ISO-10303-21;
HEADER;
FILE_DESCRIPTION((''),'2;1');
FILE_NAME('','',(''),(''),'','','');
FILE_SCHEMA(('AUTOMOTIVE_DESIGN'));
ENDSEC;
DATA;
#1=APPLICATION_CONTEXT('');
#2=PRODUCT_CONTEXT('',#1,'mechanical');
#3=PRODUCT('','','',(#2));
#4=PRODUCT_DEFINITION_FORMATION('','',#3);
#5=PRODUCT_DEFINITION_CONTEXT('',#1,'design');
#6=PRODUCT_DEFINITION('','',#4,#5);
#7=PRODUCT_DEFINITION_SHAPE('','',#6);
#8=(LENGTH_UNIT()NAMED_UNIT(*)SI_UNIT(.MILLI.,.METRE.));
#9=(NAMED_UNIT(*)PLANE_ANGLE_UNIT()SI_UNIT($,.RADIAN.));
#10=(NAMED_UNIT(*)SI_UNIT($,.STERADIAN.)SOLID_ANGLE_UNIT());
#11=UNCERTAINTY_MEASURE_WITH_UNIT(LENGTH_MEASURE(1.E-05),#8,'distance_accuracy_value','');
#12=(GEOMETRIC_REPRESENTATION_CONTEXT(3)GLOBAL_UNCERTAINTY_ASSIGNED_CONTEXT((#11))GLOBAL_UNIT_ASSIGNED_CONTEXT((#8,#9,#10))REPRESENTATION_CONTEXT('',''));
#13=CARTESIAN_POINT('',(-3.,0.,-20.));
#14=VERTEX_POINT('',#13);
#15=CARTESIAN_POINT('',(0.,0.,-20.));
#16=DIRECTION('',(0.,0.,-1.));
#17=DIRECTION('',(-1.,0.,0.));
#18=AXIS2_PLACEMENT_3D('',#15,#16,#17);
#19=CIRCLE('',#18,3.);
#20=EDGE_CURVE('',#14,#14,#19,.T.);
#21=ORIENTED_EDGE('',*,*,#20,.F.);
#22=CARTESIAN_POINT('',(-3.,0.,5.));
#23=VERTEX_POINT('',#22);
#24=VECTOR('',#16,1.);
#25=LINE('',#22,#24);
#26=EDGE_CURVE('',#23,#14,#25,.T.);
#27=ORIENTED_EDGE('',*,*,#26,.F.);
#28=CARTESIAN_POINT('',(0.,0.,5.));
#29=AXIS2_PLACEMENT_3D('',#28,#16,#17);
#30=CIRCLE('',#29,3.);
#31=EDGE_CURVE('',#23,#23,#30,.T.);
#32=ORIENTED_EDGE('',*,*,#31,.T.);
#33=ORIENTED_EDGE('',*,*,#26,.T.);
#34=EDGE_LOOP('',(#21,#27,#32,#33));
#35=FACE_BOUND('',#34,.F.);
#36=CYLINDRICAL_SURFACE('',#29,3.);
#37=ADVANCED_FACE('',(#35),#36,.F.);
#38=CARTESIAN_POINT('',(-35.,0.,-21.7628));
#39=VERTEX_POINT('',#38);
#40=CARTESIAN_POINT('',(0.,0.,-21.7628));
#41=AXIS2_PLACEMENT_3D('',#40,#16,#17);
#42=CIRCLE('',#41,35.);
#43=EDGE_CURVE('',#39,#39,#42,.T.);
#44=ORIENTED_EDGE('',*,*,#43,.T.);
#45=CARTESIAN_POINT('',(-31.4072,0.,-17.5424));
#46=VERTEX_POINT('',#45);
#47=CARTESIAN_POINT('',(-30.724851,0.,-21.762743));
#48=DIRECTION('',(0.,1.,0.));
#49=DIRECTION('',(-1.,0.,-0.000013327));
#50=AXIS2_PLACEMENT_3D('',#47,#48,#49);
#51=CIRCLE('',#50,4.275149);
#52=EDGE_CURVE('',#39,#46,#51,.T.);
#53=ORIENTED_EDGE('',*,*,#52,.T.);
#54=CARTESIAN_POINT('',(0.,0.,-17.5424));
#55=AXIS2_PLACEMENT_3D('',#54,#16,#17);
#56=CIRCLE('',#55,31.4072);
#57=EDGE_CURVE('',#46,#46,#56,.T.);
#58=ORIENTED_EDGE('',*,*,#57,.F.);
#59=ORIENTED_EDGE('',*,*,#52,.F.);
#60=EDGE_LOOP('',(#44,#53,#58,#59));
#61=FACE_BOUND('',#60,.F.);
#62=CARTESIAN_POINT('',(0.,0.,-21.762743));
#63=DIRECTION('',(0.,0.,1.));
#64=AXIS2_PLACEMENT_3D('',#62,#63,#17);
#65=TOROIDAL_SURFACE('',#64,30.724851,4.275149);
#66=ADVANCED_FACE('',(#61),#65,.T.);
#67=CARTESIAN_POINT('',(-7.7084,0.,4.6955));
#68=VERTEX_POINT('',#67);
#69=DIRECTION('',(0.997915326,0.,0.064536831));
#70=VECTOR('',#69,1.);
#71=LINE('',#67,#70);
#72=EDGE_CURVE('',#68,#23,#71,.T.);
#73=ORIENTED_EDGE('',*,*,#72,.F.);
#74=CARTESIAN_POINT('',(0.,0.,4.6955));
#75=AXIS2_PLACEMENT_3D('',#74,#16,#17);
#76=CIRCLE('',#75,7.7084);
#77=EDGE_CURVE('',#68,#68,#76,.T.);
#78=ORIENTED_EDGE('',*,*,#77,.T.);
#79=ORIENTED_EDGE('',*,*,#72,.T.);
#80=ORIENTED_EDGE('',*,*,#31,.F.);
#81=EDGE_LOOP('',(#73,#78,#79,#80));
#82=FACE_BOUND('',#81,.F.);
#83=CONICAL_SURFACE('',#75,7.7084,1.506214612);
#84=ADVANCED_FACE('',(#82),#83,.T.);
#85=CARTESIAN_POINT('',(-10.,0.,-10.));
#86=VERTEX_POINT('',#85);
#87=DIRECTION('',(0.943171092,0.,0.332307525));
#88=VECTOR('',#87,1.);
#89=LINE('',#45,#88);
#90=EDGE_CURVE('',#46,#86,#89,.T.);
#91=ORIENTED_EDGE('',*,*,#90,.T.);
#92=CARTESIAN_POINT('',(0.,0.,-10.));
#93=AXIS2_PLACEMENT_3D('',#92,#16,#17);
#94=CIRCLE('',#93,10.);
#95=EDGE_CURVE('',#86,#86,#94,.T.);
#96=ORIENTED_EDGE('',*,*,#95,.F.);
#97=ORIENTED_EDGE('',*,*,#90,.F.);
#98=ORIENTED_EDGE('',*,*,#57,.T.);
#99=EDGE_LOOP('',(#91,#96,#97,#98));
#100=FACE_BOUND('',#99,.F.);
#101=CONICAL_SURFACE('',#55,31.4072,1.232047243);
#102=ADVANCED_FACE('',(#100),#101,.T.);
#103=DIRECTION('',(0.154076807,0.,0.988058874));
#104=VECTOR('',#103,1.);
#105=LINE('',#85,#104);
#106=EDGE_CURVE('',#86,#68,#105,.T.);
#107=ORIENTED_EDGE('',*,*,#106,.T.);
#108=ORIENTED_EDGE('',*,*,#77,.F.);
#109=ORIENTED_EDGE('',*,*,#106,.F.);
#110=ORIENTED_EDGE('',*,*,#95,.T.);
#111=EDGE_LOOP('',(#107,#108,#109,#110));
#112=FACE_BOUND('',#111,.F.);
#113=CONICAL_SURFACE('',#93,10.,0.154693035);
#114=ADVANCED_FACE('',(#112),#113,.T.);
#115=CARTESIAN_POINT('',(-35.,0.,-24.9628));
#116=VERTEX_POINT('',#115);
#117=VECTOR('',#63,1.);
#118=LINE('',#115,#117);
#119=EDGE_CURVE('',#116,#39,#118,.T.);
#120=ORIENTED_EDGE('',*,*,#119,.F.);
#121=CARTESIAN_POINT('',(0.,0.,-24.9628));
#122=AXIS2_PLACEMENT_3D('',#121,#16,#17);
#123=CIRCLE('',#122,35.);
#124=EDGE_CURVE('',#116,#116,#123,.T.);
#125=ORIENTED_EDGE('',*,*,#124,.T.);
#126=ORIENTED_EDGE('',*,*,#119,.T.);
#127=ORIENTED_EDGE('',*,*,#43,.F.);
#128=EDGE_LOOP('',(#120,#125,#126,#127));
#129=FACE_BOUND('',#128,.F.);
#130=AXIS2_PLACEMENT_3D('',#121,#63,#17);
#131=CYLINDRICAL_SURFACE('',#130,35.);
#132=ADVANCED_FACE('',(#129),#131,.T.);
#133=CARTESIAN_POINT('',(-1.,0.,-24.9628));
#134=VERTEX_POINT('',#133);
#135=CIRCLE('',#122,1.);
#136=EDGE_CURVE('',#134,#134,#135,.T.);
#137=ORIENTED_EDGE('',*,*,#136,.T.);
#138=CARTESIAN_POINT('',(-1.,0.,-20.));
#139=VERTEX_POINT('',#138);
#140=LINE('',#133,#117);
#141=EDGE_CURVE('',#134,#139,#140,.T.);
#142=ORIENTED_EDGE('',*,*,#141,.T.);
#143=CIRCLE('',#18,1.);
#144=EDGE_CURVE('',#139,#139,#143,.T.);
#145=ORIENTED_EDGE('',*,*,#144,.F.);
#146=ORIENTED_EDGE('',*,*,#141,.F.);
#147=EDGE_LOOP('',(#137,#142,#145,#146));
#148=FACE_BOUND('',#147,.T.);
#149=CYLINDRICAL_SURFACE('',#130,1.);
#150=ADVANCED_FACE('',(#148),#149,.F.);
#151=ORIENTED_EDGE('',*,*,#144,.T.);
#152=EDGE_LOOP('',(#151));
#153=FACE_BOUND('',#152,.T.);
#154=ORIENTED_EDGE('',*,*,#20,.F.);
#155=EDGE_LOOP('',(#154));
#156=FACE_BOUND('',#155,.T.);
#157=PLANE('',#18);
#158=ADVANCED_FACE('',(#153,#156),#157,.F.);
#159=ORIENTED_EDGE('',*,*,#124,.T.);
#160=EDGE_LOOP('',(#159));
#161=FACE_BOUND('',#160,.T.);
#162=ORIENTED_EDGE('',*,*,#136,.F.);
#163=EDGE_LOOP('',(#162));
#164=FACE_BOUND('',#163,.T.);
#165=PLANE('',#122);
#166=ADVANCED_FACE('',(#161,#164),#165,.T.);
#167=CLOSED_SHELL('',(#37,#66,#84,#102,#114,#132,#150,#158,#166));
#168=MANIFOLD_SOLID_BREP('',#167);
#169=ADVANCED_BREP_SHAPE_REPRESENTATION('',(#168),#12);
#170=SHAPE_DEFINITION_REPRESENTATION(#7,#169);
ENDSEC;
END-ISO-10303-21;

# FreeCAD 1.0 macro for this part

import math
import FreeCAD as App
import Part
import Sketcher

V = App.Vector
Q = App.Units.Quantity

doc = App.newDocument("Part")
body = doc.addObject("PartDesign::Body", "Body")

# Sketch on XZ plane
sketch1 = body.newObject("Sketcher::SketchObject", "Sketch")
sketch1.AttachmentSupport = (doc.getObject("XZ_Plane"), [""])
sketch1.MapMode = "FlatFace"
sketch1.addGeometry(Part.LineSegment(V(-1, -24.9628, 0), V(-35, -24.9628, 0)), False)
sketch1.addGeometry(Part.LineSegment(V(-35, -24.9628, 0), V(-35, -21.7628, 0)), False)
sketch1.addGeometry(Part.ArcOfCircle(Part.Circle(V(-30.7249, -21.7628, 0), V(0, 0, 1), 4.2751), math.radians(99.183388), math.radians(180)), False)
sketch1.addGeometry(Part.LineSegment(V(-31.4072, -17.5424, 0), V(-10, -10, 0)), False)
sketch1.addGeometry(Part.LineSegment(V(-10, -10, 0), V(-7.7084, 4.6955, 0)), False)
sketch1.addGeometry(Part.LineSegment(V(-7.7084, 4.6955, 0), V(-3, 5, 0)), False)
sketch1.addGeometry(Part.LineSegment(V(-3, 5, 0), V(-3, -20, 0)), False)
sketch1.addGeometry(Part.LineSegment(V(-3, -20, 0), V(-1, -20, 0)), False)
sketch1.addGeometry(Part.LineSegment(V(-1, -20, 0), V(-1, -24.9628, 0)), False)
sketch1.addConstraint(Sketcher.Constraint("Coincident", 0, 2, 1, 1))
sketch1.addConstraint(Sketcher.Constraint("Tangent", 1, 2, 2, 2))
sketch1.addConstraint(Sketcher.Constraint("Coincident", 2, 1, 3, 1))
sketch1.addConstraint(Sketcher.Constraint("Coincident", 3, 2, 4, 1))
sketch1.addConstraint(Sketcher.Constraint("Coincident", 4, 2, 5, 1))
sketch1.addConstraint(Sketcher.Constraint("Coincident", 5, 2, 6, 1))
sketch1.addConstraint(Sketcher.Constraint("Coincident", 6, 2, 7, 1))
sketch1.addConstraint(Sketcher.Constraint("Coincident", 7, 2, 8, 1))
sketch1.addConstraint(Sketcher.Constraint("Coincident", 8, 2, 0, 1))
sketch1.addConstraint(Sketcher.Constraint("Horizontal", 0))
sketch1.addConstraint(Sketcher.Constraint("Vertical", 1))
sketch1.addConstraint(Sketcher.Constraint("Vertical", 6))
sketch1.addConstraint(Sketcher.Constraint("Horizontal", 7))
sketch1.addConstraint(Sketcher.Constraint("Vertical", 8))
sketch1.addConstraint(Sketcher.Constraint("DistanceX", 0, 2, 0, 1, 34.0))
sketch1.addConstraint(Sketcher.Constraint("DistanceY", 1, 1, 1, 2, 3.2))
sketch1.addConstraint(Sketcher.Constraint("DistanceX", 5, 2, -1, 1, 3.0))
sketch1.addConstraint(Sketcher.Constraint("DistanceX", 7, 1, 7, 2, 2.0))
sketch1.addConstraint(Sketcher.Constraint("DistanceY", 6, 2, 6, 1, 25.0))
sketch1.addConstraint(Sketcher.Constraint("DistanceX", 3, 2, -1, 1, 10.0))
sketch1.addConstraint(Sketcher.Constraint("DistanceY", 3, 2, -1, 1, 10.0))
sketch1.addConstraint(Sketcher.Constraint("DistanceY", -1, 1, 5, 2, 5.0))
sketch1.addConstraint(Sketcher.Constraint("Angle", 5, Q("3.7003 deg")))
sketch1.addConstraint(Sketcher.Constraint("Radius", 2, 4.275))
sketch1.addConstraint(Sketcher.Constraint("Angle", 3, Q("19.409 deg")))
sketch1.addConstraint(Sketcher.Constraint("Distance", 3, 22.697))
sketch1.addConstraint(Sketcher.Constraint("Distance", 4, 14.873))
revolution = body.newObject("PartDesign::Revolution", "Revolution")
revolution.Profile = sketch1
revolution.ReferenceAxis = (sketch1, ["V_Axis"])
revolution.Angle = 360

doc.recompute()
